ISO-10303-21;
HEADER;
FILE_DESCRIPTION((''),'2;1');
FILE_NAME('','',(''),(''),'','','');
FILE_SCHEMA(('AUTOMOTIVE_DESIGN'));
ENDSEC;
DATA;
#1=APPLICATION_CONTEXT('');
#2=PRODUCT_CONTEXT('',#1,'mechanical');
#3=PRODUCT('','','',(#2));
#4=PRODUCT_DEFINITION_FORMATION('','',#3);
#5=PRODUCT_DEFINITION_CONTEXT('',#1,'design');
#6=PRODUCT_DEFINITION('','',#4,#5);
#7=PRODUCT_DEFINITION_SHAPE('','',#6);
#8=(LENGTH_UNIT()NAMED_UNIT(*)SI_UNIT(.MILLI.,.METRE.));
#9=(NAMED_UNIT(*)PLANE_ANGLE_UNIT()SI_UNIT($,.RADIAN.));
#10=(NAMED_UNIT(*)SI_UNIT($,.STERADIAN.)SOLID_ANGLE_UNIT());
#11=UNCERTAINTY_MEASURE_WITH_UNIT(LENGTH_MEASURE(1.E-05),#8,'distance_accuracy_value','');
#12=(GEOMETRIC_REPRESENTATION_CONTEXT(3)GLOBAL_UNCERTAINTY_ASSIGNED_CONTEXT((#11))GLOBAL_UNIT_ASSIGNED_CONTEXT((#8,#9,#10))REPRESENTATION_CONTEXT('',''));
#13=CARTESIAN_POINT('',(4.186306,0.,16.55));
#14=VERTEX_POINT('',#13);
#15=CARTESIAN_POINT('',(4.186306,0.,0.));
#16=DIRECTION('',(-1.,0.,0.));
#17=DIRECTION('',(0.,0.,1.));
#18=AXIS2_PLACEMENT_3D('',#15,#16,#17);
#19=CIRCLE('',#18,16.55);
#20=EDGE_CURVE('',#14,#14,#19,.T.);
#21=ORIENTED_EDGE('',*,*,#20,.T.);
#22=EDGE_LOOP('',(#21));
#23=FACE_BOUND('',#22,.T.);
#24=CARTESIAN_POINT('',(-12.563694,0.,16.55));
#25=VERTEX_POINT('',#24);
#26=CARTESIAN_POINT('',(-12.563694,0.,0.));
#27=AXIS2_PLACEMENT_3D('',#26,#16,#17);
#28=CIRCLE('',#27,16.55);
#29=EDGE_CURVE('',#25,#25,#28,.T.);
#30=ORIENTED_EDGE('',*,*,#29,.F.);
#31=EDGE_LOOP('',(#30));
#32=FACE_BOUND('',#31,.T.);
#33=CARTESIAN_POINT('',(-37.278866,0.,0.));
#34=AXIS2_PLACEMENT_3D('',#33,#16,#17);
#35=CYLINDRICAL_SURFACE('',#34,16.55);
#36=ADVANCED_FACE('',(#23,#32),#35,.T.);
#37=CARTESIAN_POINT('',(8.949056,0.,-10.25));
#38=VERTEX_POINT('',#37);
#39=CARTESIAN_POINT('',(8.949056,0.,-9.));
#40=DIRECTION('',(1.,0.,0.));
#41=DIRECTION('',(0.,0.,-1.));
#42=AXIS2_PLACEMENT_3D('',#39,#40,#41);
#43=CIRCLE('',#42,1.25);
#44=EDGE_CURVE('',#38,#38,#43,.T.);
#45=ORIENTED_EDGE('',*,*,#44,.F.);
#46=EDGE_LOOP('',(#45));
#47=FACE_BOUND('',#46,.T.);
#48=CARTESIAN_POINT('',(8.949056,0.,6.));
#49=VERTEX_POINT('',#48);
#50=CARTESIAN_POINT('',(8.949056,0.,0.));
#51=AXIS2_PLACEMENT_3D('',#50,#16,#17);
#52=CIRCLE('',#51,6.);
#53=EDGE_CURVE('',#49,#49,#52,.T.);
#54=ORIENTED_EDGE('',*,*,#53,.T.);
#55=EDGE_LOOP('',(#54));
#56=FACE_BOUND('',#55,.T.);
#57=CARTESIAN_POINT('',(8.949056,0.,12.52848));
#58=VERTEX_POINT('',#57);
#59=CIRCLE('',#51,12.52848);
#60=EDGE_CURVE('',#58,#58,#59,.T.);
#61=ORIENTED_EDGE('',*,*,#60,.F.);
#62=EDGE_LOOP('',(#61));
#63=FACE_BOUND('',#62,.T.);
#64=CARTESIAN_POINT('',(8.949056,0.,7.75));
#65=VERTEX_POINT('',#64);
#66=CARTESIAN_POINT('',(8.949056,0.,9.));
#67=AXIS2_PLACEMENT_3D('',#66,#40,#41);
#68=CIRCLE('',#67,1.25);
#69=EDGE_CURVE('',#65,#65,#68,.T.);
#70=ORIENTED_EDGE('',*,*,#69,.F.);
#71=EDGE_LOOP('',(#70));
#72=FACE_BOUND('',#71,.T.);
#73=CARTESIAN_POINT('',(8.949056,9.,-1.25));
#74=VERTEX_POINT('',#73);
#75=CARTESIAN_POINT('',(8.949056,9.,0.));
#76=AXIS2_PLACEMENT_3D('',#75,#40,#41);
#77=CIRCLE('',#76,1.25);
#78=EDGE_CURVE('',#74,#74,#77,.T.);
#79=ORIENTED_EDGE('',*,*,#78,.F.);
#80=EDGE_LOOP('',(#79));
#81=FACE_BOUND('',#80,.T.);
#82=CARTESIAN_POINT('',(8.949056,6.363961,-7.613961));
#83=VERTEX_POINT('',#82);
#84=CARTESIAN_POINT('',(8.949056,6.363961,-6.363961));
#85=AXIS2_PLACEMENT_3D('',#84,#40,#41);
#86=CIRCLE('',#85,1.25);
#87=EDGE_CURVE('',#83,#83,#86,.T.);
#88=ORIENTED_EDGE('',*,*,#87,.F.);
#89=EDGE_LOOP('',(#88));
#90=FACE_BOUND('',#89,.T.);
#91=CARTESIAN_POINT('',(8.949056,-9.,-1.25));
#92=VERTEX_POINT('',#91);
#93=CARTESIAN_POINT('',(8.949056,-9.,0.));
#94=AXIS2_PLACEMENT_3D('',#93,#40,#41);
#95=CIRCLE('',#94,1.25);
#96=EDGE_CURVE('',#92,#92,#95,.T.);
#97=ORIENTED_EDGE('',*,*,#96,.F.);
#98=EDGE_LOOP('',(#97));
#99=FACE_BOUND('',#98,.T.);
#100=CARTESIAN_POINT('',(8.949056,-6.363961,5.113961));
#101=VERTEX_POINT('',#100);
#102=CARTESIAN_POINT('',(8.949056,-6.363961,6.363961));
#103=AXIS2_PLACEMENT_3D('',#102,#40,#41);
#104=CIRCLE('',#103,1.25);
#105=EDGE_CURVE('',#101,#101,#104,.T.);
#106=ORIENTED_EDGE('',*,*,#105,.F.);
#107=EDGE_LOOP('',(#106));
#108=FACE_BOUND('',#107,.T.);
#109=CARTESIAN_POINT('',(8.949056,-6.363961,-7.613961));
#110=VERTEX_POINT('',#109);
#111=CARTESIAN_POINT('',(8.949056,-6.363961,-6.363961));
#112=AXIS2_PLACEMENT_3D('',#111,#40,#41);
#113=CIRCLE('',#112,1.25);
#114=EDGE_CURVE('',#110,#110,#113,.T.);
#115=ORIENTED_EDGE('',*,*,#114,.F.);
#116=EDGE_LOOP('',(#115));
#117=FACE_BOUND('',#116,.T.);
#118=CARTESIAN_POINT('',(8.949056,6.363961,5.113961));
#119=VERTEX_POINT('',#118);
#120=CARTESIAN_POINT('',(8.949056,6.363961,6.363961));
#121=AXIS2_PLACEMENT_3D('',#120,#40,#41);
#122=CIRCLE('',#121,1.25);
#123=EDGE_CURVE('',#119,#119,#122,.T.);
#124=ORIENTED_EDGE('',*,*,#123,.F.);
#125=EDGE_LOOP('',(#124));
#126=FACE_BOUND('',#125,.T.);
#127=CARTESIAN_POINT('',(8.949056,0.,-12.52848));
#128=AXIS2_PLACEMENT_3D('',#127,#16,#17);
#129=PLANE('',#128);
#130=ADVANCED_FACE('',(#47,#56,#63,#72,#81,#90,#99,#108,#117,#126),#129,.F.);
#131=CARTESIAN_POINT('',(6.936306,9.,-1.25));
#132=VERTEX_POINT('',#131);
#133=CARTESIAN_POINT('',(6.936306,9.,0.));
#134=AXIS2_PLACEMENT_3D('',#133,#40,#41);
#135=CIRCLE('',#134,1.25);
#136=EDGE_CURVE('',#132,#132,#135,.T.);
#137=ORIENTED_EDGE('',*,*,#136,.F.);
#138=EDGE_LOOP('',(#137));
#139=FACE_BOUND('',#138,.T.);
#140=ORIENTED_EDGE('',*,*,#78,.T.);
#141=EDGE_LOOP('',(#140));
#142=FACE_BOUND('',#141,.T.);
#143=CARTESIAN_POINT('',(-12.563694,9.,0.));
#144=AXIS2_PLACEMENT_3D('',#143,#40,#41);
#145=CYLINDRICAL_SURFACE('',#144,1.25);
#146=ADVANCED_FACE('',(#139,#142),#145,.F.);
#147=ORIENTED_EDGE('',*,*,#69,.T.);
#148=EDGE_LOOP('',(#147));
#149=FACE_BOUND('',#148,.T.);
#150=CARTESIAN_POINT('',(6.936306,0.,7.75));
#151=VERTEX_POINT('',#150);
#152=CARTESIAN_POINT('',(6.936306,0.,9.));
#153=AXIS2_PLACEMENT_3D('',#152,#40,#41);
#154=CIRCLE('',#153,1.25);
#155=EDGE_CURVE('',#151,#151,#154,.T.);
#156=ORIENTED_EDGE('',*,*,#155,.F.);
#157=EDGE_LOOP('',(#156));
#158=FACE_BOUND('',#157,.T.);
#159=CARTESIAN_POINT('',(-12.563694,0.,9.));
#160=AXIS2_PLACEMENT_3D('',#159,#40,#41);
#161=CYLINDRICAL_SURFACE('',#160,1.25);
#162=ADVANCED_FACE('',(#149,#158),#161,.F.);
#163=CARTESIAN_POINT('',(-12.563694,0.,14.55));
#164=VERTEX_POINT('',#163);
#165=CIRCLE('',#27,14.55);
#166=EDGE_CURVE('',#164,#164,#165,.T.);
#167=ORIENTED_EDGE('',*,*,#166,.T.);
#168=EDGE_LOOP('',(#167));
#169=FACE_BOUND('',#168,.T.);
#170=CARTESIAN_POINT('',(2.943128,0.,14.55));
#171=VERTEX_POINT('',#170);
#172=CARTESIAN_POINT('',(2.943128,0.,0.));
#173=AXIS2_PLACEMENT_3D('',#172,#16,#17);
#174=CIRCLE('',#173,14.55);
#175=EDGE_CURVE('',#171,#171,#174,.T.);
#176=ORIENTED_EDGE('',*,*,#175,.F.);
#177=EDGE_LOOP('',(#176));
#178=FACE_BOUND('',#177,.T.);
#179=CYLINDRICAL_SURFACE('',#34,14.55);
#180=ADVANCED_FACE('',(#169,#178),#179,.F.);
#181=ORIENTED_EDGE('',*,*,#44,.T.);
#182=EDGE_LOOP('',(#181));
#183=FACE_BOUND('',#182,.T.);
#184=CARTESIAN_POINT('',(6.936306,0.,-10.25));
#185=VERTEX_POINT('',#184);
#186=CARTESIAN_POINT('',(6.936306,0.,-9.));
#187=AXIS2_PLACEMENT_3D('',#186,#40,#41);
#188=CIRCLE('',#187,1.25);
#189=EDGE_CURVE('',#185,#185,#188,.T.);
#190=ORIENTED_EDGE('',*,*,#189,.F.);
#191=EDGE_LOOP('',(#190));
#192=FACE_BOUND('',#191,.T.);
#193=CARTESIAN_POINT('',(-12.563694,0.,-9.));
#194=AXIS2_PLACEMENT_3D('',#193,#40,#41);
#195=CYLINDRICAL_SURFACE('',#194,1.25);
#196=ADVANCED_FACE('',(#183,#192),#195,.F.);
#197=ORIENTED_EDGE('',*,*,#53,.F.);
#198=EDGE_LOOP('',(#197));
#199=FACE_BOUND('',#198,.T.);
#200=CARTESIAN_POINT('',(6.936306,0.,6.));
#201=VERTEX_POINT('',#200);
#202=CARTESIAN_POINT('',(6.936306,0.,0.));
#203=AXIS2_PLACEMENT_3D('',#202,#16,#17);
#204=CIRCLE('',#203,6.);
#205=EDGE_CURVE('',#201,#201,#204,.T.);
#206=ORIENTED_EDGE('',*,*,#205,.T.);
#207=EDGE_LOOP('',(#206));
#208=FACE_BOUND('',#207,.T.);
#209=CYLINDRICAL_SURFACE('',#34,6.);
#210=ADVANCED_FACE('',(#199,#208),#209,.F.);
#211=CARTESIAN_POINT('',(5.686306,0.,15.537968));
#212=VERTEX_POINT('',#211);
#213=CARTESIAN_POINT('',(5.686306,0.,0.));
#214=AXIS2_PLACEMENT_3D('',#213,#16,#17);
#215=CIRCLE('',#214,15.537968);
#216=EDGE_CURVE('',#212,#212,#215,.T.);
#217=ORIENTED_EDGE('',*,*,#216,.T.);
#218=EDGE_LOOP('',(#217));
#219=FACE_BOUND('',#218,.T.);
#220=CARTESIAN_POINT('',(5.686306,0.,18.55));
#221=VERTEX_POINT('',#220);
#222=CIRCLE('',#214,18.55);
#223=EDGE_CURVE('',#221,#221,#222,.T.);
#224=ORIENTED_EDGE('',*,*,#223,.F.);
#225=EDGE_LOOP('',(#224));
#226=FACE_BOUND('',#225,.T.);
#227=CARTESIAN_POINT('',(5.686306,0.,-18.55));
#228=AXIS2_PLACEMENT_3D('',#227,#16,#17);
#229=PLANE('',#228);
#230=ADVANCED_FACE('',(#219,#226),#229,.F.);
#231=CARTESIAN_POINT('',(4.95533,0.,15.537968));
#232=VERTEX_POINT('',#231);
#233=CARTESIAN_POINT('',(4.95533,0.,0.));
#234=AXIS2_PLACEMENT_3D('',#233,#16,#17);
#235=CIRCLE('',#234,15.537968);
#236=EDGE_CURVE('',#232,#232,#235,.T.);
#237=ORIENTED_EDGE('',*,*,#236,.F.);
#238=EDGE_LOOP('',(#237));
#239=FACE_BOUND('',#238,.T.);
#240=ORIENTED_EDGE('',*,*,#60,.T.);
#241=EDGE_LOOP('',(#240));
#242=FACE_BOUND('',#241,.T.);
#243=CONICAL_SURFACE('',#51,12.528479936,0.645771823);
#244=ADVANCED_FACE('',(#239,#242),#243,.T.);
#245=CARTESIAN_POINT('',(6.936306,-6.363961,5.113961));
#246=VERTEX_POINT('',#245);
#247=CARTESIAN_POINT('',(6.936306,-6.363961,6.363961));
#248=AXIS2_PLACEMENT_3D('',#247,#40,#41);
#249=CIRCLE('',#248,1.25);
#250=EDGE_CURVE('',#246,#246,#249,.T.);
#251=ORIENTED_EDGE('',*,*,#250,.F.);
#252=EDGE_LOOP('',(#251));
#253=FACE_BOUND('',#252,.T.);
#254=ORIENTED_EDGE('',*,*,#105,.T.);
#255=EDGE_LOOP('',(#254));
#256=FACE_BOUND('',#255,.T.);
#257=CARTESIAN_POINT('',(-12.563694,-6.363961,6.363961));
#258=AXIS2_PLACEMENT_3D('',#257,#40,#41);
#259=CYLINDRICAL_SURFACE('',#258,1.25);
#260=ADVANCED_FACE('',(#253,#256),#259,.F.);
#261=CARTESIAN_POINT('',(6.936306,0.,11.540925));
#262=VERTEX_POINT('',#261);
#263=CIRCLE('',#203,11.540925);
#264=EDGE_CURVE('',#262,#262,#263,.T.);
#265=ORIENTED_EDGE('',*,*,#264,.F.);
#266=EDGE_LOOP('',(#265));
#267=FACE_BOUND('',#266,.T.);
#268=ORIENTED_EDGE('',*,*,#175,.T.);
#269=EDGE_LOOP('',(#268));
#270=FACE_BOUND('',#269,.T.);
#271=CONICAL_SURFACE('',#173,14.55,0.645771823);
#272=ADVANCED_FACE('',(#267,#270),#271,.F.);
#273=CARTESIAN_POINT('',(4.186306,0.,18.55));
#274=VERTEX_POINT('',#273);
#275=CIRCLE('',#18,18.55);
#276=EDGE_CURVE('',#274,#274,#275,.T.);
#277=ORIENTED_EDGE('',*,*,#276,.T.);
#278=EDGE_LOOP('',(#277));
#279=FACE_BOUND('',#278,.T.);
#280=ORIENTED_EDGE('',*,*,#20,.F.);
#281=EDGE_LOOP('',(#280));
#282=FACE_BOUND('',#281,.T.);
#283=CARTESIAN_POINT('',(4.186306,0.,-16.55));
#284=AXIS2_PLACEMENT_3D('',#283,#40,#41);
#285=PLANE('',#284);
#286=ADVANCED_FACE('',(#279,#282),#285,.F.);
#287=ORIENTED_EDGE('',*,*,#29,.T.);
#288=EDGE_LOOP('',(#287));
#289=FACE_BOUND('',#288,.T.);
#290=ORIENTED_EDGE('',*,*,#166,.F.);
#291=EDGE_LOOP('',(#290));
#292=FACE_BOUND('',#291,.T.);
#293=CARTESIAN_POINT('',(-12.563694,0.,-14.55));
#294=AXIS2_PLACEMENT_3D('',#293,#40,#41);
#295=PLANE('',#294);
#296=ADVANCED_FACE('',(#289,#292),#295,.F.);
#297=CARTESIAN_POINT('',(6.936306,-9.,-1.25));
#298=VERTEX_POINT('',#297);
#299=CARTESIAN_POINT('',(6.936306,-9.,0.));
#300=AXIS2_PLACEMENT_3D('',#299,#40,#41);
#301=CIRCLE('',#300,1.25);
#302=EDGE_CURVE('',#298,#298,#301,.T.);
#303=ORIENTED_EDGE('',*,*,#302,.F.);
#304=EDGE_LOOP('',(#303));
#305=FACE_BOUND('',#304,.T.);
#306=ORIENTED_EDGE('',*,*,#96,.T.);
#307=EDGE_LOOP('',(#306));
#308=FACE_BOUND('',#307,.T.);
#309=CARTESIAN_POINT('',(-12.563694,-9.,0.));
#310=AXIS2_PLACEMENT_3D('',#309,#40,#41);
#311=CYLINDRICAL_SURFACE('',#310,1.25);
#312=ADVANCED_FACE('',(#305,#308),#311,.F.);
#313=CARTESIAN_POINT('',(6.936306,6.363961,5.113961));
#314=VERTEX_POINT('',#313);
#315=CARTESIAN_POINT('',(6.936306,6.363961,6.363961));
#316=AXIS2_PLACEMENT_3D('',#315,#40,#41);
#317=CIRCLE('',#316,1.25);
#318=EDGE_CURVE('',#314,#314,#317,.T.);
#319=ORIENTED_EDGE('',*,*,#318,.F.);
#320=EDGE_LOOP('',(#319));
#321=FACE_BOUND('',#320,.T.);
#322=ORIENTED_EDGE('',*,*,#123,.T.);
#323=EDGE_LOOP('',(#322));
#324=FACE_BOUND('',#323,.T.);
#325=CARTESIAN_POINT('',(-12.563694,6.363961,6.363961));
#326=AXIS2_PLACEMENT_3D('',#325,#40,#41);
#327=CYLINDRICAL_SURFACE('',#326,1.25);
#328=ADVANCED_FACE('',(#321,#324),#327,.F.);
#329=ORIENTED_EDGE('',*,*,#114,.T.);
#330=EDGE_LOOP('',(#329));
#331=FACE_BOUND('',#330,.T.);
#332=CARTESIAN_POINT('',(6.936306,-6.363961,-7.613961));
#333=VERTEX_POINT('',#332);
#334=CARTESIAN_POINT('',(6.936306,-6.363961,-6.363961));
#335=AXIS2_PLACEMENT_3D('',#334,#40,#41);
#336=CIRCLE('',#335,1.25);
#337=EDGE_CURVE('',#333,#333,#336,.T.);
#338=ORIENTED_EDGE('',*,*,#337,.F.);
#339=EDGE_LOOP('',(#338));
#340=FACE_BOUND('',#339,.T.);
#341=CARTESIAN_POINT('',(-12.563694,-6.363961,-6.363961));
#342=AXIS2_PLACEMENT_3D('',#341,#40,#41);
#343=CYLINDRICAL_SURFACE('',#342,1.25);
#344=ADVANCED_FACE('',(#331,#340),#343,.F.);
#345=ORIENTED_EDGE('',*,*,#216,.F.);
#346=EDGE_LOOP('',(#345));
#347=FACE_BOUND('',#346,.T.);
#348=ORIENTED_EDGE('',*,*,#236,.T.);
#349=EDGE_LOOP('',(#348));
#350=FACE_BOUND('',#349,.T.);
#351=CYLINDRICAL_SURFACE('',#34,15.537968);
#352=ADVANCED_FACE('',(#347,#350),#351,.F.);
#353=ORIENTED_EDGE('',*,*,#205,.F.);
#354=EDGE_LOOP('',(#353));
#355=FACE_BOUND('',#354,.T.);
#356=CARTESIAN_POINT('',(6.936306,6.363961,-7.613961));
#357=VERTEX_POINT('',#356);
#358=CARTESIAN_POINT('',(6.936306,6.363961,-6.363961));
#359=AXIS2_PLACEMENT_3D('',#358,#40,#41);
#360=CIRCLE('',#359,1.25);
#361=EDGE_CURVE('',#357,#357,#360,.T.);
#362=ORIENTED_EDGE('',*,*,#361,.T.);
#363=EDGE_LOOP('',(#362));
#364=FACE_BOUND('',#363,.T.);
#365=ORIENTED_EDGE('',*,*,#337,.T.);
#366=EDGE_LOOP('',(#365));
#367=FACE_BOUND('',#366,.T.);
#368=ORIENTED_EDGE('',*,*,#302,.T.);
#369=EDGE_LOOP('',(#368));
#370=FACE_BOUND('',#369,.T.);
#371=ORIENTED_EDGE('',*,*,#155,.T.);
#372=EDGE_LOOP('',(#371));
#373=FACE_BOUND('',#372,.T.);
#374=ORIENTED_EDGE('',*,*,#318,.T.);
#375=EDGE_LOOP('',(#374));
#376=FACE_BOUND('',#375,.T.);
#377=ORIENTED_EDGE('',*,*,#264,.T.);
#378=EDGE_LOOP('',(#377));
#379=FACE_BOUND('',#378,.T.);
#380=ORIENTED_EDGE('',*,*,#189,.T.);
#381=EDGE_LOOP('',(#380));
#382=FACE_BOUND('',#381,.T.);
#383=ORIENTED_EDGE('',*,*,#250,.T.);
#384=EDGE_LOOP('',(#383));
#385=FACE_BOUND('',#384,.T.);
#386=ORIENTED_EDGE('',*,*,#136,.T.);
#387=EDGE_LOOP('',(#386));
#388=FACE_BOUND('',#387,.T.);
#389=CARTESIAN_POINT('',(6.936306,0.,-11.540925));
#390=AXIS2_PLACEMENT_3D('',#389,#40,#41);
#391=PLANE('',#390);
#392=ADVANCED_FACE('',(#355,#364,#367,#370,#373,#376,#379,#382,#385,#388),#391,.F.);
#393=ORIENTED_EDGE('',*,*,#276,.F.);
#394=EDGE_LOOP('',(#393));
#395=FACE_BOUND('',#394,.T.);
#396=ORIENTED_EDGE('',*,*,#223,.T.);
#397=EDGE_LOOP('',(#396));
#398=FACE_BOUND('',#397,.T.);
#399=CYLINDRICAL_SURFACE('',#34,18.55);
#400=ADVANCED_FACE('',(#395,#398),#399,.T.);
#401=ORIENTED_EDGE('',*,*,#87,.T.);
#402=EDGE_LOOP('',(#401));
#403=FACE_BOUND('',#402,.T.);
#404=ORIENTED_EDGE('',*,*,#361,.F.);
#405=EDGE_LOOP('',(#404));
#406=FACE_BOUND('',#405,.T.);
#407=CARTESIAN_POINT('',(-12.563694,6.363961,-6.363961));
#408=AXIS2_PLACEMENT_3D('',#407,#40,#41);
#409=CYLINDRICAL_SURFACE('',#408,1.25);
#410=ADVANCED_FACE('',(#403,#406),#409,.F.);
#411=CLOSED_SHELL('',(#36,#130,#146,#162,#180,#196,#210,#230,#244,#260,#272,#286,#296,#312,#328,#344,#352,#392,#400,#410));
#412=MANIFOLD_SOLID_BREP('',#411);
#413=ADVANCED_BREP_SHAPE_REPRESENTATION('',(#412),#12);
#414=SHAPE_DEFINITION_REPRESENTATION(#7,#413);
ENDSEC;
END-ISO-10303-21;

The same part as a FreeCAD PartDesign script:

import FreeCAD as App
import Part
import Sketcher

V = App.Vector
Q = App.Units.Quantity

doc = App.newDocument("Part")
body = doc.addObject("PartDesign::Body", "Body")

# Sketch on XZ plane
sketch1 = doc.addObject("Sketcher::SketchObject", "Sketch")
body.addObject(sketch1)
sketch1.AttachmentSupport = (doc.XZ_Plane, [""])
sketch1.MapMode = "FlatFace"
sketch1.addGeometry(Part.LineSegment(V(-12.6, -16.6, 0), V(-12.6, -14.6, 0)), False)
sketch1.addGeometry(Part.LineSegment(V(-12.6, -14.6, 0), V(2.9, -14.6, 0)), False)
sketch1.addGeometry(Part.LineSegment(V(2.9, -14.6, 0), V(6.9, -11.5, 0)), False)
sketch1.addGeometry(Part.LineSegment(V(6.9, -11.5, 0), V(6.9, -6, 0)), False)
sketch1.addGeometry(Part.LineSegment(V(6.9, -6, 0), V(8.9, -6, 0)), False)
sketch1.addGeometry(Part.LineSegment(V(8.9, -6, 0), V(8.9, -12.5, 0)), False)
sketch1.addGeometry(Part.LineSegment(V(8.9, -12.5, 0), V(5, -15.5, 0)), False)
sketch1.addGeometry(Part.LineSegment(V(5, -15.5, 0), V(5.7, -15.5, 0)), False)
sketch1.addGeometry(Part.LineSegment(V(5.7, -15.5, 0), V(5.7, -18.6, 0)), False)
sketch1.addGeometry(Part.LineSegment(V(5.7, -18.6, 0), V(4.2, -18.6, 0)), False)
sketch1.addGeometry(Part.LineSegment(V(4.2, -18.6, 0), V(4.2, -16.6, 0)), False)
sketch1.addGeometry(Part.LineSegment(V(4.2, -16.6, 0), V(-12.6, -16.6, 0)), False)
sketch1.addConstraint(Sketcher.Constraint("Coincident", 0, 2, 1, 1))
sketch1.addConstraint(Sketcher.Constraint("Coincident", 1, 2, 2, 1))
sketch1.addConstraint(Sketcher.Constraint("Coincident", 2, 2, 3, 1))
sketch1.addConstraint(Sketcher.Constraint("Coincident", 3, 2, 4, 1))
sketch1.addConstraint(Sketcher.Constraint("Coincident", 4, 2, 5, 1))
sketch1.addConstraint(Sketcher.Constraint("Coincident", 5, 2, 6, 1))
sketch1.addConstraint(Sketcher.Constraint("Coincident", 6, 2, 7, 1))
sketch1.addConstraint(Sketcher.Constraint("Coincident", 7, 2, 8, 1))
sketch1.addConstraint(Sketcher.Constraint("Coincident", 8, 2, 9, 1))
sketch1.addConstraint(Sketcher.Constraint("Coincident", 9, 2, 10, 1))
sketch1.addConstraint(Sketcher.Constraint("Coincident", 10, 2, 11, 1))
sketch1.addConstraint(Sketcher.Constraint("Coincident", 11, 2, 0, 1))
sketch1.addConstraint(Sketcher.Constraint("Vertical", 0))
sketch1.addConstraint(Sketcher.Constraint("Horizontal", 1))
sketch1.addConstraint(Sketcher.Constraint("Vertical", 3))
sketch1.addConstraint(Sketcher.Constraint("Horizontal", 4))
sketch1.addConstraint(Sketcher.Constraint("Vertical", 5))
sketch1.addConstraint(Sketcher.Constraint("Horizontal", 7))
sketch1.addConstraint(Sketcher.Constraint("Vertical", 8))
sketch1.addConstraint(Sketcher.Constraint("Horizontal", 9))
sketch1.addConstraint(Sketcher.Constraint("Vertical", 10))
sketch1.addConstraint(Sketcher.Constraint("Horizontal", 11))
sketch1.addConstraint(Sketcher.Constraint("Parallel", 2, 6))
sketch1.addConstraint(Sketcher.Constraint("Equal", 0, 10))
sketch1.addConstraint(Sketcher.Constraint("DistanceY", 0, 1, 0, 2, Q("2 mm")))
sketch1.addConstraint(Sketcher.Constraint("Angle", 2, Q("37 deg")))
sketch1.addConstraint(Sketcher.Constraint("Distance", 2, Q("5 mm")))
sketch1.addConstraint(Sketcher.Constraint("DistanceX", 9, 2, 9, 1, Q("1.5 mm")))
sketch1.addConstraint(Sketcher.Constraint("DistanceY", 3, 2, -1, 1, Q("6 mm")))
sketch1.addConstraint(Sketcher.Constraint("DistanceX", 11, 2, 11, 1, Q("16.75 mm")))
sketch1.addConstraint(Sketcher.Constraint("DistanceX", 0, 2, 2, 2, Q("19.5 mm")))
sketch1.addConstraint(Sketcher.Constraint("DistanceY", 0, 2, -1, 1, Q("14.55 mm")))
sketch1.addConstraint(Sketcher.Constraint("DistanceX", 4, 1, 4, 2, Q("2.01275 mm")))
sketch1.addConstraint(Sketcher.Constraint("DistanceY", 5, 2, 5, 1, Q("6.52848 mm")))
sketch1.addConstraint(Sketcher.Constraint("DistanceY", 8, 2, 8, 1, Q("3.012032 mm")))
sketch1.addConstraint(Sketcher.Constraint("DistanceX", -1, 1, 1, 2, Q("2.943128 mm")))
revolution = doc.addObject("PartDesign::Revolution", "Revolution")
body.addObject(revolution)
revolution.Profile = sketch1
revolution.ReferenceAxis = (sketch1, ["H_Axis"])
revolution.Angle = 360

# Sketch on YZ plane
sketch2 = doc.addObject("Sketcher::SketchObject", "Sketch001")
body.addObject(sketch2)
sketch2.AttachmentSupport = (doc.YZ_Plane, [""])
sketch2.MapMode = "FlatFace"
sketch2.AttachmentOffset = App.Placement(V(0, 0, 8.949056), App.Rotation())
sketch2.addGeometry(Part.Circle(V(9, 0, 0), V(0, 0, 1), 1.2), False)
sketch2.addGeometry(Part.Circle(V(6.4, -6.4, 0), V(0, 0, 1), 1.2), False)
sketch2.addGeometry(Part.Circle(V(0, -9, 0), V(0, 0, 1), 1.2), False)
sketch2.addGeometry(Part.Circle(V(-6.4, -6.4, 0), V(0, 0, 1), 1.2), False)
sketch2.addGeometry(Part.Circle(V(-9, 0, 0), V(0, 0, 1), 1.2), False)
sketch2.addGeometry(Part.Circle(V(-6.4, 6.4, 0), V(0, 0, 1), 1.2), False)
sketch2.addGeometry(Part.Circle(V(0, 9, 0), V(0, 0, 1), 1.2), False)
sketch2.addGeometry(Part.Circle(V(6.4, 6.4, 0), V(0, 0, 1), 1.2), False)
sketch2.addConstraint(Sketcher.Constraint("Equal", 0, 1))
sketch2.addConstraint(Sketcher.Constraint("Equal", 1, 2))
sketch2.addConstraint(Sketcher.Constraint("Equal", 2, 3))
sketch2.addConstraint(Sketcher.Constraint("Equal", 3, 4))
sketch2.addConstraint(Sketcher.Constraint("Equal", 4, 5))
sketch2.addConstraint(Sketcher.Constraint("Equal", 5, 6))
sketch2.addConstraint(Sketcher.Constraint("Equal", 6, 7))
sketch2.addConstraint(Sketcher.Constraint("Symmetric", 0, 3, 4, 3, -1, 1))
sketch2.addConstraint(Sketcher.Constraint("Symmetric", 1, 3, 5, 3, -1, 1))
sketch2.addConstraint(Sketcher.Constraint("Symmetric", 2, 3, 6, 3, -1, 1))
sketch2.addConstraint(Sketcher.Constraint("Symmetric", 3, 3, 7, 3, -1, 1))
sketch2.addConstraint(Sketcher.Constraint("Symmetric", 1, 3, 3, 3, -2))
sketch2.addConstraint(Sketcher.Constraint("PointOnObject", 0, 3, -1))
sketch2.addConstraint(Sketcher.Constraint("PointOnObject", 2, 3, -2))
sketch2.addConstraint(Sketcher.Constraint("Diameter", 0, Q("2.5 mm")))
sketch2.addConstraint(Sketcher.Constraint("DistanceX", -1, 1, 0, 3, Q("9 mm")))
sketch2.addConstraint(Sketcher.Constraint("DistanceY", 2, 3, -1, 1, Q("9 mm")))
sketch2.addConstraint(Sketcher.Constraint("DistanceX", -1, 1, 1, 3, Q("6.363961 mm")))
sketch2.addConstraint(Sketcher.Constraint("DistanceY", 1, 3, -1, 1, Q("6.363961 mm")))
pocket1 = doc.addObject("PartDesign::Pocket", "Pocket")
body.addObject(pocket1)
pocket1.Profile = sketch2
pocket1.Type = "ThroughAll"

doc.recompute()
